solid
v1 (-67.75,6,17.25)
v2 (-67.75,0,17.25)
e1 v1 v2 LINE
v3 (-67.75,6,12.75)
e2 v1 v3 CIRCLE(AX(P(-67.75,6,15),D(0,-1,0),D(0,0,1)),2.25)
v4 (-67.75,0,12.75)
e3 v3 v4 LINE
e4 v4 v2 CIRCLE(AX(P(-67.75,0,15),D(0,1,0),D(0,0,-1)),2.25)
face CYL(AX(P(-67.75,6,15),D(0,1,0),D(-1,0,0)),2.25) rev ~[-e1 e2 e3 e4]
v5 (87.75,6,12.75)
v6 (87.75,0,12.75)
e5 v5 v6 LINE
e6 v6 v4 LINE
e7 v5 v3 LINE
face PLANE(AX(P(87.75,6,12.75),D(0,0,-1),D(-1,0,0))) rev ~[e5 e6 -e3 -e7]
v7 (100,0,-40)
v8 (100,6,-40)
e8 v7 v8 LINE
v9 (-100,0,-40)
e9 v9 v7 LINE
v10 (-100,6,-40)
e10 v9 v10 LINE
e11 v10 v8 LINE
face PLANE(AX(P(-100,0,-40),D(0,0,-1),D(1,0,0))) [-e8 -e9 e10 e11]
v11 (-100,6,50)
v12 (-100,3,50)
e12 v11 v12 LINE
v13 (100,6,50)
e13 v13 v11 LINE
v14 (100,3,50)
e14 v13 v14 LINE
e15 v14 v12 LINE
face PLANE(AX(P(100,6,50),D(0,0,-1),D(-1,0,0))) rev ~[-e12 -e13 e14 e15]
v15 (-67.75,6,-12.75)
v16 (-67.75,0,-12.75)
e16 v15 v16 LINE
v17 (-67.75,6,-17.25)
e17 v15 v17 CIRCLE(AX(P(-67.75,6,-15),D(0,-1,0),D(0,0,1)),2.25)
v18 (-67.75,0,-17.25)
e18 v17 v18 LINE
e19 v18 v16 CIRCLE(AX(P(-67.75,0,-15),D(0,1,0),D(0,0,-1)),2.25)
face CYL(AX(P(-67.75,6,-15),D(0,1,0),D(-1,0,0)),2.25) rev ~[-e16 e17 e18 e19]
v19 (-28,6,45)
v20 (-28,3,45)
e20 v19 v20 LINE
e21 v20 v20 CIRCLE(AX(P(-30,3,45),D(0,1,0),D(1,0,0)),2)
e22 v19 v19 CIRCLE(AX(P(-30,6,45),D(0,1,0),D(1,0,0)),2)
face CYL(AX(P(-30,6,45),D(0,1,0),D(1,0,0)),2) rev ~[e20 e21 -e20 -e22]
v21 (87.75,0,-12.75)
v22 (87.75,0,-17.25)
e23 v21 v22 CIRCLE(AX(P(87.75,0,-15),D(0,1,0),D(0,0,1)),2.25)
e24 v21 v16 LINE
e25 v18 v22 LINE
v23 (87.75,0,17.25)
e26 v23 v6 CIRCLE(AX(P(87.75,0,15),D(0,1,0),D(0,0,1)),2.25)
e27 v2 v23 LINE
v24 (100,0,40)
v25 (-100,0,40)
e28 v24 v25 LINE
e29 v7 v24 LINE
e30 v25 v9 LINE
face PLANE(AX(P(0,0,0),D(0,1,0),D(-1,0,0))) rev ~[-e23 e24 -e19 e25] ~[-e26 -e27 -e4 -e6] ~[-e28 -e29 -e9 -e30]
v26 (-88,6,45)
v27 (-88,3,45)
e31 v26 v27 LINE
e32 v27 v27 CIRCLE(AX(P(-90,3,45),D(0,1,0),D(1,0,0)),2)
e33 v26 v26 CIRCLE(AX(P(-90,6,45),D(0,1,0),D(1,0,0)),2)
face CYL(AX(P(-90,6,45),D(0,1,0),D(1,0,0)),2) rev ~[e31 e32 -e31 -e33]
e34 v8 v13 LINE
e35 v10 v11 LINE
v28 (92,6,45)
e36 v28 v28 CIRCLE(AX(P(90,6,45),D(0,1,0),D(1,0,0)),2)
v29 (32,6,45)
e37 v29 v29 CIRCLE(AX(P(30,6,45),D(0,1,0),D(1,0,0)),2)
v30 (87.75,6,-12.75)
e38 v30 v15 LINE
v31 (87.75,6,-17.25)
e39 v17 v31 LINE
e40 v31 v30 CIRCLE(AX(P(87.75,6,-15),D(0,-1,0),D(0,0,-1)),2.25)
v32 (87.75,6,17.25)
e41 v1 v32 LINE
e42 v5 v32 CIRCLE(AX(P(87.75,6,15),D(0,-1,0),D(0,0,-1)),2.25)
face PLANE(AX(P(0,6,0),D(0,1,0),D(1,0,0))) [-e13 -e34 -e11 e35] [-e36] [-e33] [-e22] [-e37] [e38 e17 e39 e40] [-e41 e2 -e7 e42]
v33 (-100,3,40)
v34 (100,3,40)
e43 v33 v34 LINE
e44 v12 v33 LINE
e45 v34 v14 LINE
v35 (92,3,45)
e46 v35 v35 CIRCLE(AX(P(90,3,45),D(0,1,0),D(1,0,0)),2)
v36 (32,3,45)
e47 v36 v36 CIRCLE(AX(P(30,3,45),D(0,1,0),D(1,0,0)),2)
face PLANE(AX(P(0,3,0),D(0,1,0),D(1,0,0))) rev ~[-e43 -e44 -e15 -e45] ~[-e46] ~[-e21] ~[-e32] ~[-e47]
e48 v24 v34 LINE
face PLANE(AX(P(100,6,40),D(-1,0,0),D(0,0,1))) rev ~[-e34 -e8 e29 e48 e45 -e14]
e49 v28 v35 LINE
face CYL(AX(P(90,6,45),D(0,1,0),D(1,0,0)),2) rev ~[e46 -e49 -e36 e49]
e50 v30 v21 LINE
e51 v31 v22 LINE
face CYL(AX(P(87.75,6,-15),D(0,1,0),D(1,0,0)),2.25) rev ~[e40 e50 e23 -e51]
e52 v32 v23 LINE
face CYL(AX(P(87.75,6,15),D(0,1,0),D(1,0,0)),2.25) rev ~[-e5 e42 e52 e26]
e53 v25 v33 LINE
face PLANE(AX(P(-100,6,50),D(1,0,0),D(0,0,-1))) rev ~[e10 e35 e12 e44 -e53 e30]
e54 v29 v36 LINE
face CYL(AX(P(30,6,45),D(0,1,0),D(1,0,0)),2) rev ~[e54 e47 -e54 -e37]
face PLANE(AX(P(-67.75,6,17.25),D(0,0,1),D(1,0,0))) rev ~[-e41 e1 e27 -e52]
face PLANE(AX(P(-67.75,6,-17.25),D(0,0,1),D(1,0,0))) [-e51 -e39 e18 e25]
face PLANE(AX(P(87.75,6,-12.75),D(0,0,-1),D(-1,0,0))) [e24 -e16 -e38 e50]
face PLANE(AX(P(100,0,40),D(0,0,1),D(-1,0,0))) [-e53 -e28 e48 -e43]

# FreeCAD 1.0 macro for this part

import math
import FreeCAD as App
import Part
import Sketcher
from FreeCAD import Vector
Q = App.Units.Quantity


def add_polygon(sketch, points):
    """Adds a closed chain of lines whose ends are joined by coincident constraints."""
    first, n = sketch.GeometryCount, len(points)
    for a, b in zip(points, points[1:] + points[:1]):
        sketch.addGeometry(Part.LineSegment(App.Vector(*a, 0), App.Vector(*b, 0)), False)
    for i in range(n):
        sketch.addConstraint(Sketcher.Constraint("Coincident", first + i, 2, first + (i + 1) % n, 1))

doc = App.newDocument("Part")
params = doc.addObject("Spreadsheet::Sheet", "Params")
for row, (alias, value) in enumerate([
    ("sketch1_width", "200 mm"),
    ("sketch1_height", "80 mm"),
    ("pad1_length", "6 mm"),
    ("sketch2_radius", "2.25 mm"),
    ("sketch2_width", "155.5 mm"),
    ("pocket1_length", "6 mm"),
    ("sketch3_height", "10 mm"),
    ("sketch3_width", "200 mm"),
    ("pad2_length", "3 mm"),
    ("sketch4_diameter", "4 mm"),
    ("pocket2_length", "3 mm"),
], start=1):
    params.set(f"A{row}", alias)
    params.set(f"B{row}", "=" + value)
    params.setAlias(f"B{row}", alias)

body = doc.addObject("PartDesign::Body", "Body")

sketch1 = body.newObject("Sketcher::SketchObject", "Sketch")
sketch1.AttachmentSupport = (doc.getObject("XZ_Plane"), [""])
sketch1.MapMode = "FlatFace"
add_polygon(sketch1, [(-100, 40), (100, 40), (100, -40), (-100, -40)])
sketch1.addConstraint([
    Sketcher.Constraint("Horizontal", 0),
    Sketcher.Constraint("Vertical", 1),
    Sketcher.Constraint("Horizontal", 2),
    Sketcher.Constraint("Vertical", 3),
    Sketcher.Constraint("Symmetric", 0, 2, 2, 2, -1, 1),
    Sketcher.Constraint("DistanceX", 0, 1, 0, 2, Q("200 mm")),
    Sketcher.Constraint("DistanceY", 1, 2, 1, 1, Q("80 mm")),
])
sketch1.setExpression("Constraints[9]", "Params.sketch1_width")
sketch1.setExpression("Constraints[10]", "Params.sketch1_height")
pad1 = body.newObject("PartDesign::Pad", "Pad")
pad1.Profile = sketch1
pad1.setExpression("Length", "Params.pad1_length")
pad1.Reversed = True

sketch2 = body.newObject("Sketcher::SketchObject", "Sketch001")
sketch2.AttachmentSupport = (doc.getObject("XZ_Plane"), [""])
sketch2.MapMode = "FlatFace"
sketch2.AttachmentOffset = App.Placement(Vector(0, 0, -6), App.Rotation())
sketch2.addGeometry([
    Part.ArcOfCircle(Part.Circle(Vector(-67.75, 15, 0), Vector(0, 0, 1), 2.25), math.radians(90), math.radians(270)),
    Part.LineSegment(Vector(-67.75, 17.25, 0), Vector(87.75, 17.25, 0)),
    Part.ArcOfCircle(Part.Circle(Vector(87.75, 15, 0), Vector(0, 0, 1), 2.25), math.radians(-90), math.radians(90)),
    Part.LineSegment(Vector(87.75, 12.75, 0), Vector(-67.75, 12.75, 0)),
    Part.LineSegment(Vector(87.75, -17.25, 0), Vector(-67.75, -17.25, 0)),
    Part.ArcOfCircle(Part.Circle(Vector(-67.75, -15, 0), Vector(0, 0, 1), 2.25), math.radians(90), math.radians(270)),
    Part.LineSegment(Vector(-67.75, -12.75, 0), Vector(87.75, -12.75, 0)),
    Part.ArcOfCircle(Part.Circle(Vector(87.75, -15, 0), Vector(0, 0, 1), 2.25), math.radians(-90), math.radians(90)),
], False)
sketch2.addConstraint([
    Sketcher.Constraint("Tangent", 0, 1, 1, 1),
    Sketcher.Constraint("Tangent", 1, 2, 2, 2),
    Sketcher.Constraint("Tangent", 2, 1, 3, 1),
    Sketcher.Constraint("Tangent", 3, 2, 0, 2),
    Sketcher.Constraint("Tangent", 4, 2, 5, 2),
    Sketcher.Constraint("Tangent", 5, 1, 6, 1),
    Sketcher.Constraint("Tangent", 6, 2, 7, 2),
    Sketcher.Constraint("Tangent", 7, 1, 4, 1),
    Sketcher.Constraint("Horizontal", 1),
    Sketcher.Constraint("Horizontal", 3),
    Sketcher.Constraint("Horizontal", 4),
    Sketcher.Constraint("Horizontal", 6),
    Sketcher.Constraint("Equal", 2, 5),
    Sketcher.Constraint("Symmetric", 0, 3, 5, 3, -1),
    Sketcher.Constraint("Vertical", 2, 3, 7, 3),
    Sketcher.Constraint("Radius", 0, Q("2.25 mm")),
    Sketcher.Constraint("DistanceY", 5, 3, 0, 3, Q("30 mm")),
    Sketcher.Constraint("DistanceX", 1, 1, 1, 2, Q("155.5 mm")),
    Sketcher.Constraint("DistanceX", 0, 3, -1, 1, Q("67.75 mm")),
])
sketch2.setExpression("Constraints[15]", "Params.sketch2_radius")
sketch2.setExpression("Constraints[17]", "Params.sketch2_width")
pocket1 = body.newObject("PartDesign::Pocket", "Pocket")
pocket1.Profile = sketch2
pocket1.setExpression("Length", "Params.pocket1_length")
pocket1.Reversed = True

sketch3 = body.newObject("Sketcher::SketchObject", "Sketch002")
sketch3.AttachmentSupport = (doc.getObject("XZ_Plane"), [""])
sketch3.MapMode = "FlatFace"
sketch3.AttachmentOffset = App.Placement(Vector(0, 0, -6), App.Rotation())
add_polygon(sketch3, [(100, 50), (100, 40), (-100, 40), (-100, 50)])
sketch3.addConstraint([
    Sketcher.Constraint("Vertical", 0),
    Sketcher.Constraint("Horizontal", 1),
    Sketcher.Constraint("Vertical", 2),
    Sketcher.Constraint("Horizontal", 3),
    Sketcher.Constraint("DistanceY", 0, 2, 0, 1, Q("10 mm")),
    Sketcher.Constraint("DistanceX", 1, 2, 1, 1, Q("200 mm")),
    Sketcher.Constraint("DistanceX", -1, 1, 0, 2, Q("100 mm")),
    Sketcher.Constraint("DistanceY", -1, 1, 0, 2, Q("40 mm")),
])
sketch3.setExpression("Constraints[8]", "Params.sketch3_height")
sketch3.setExpression("Constraints[9]", "Params.sketch3_width")
pad2 = body.newObject("PartDesign::Pad", "Pad001")
pad2.Profile = sketch3
pad2.setExpression("Length", "Params.pad2_length")

sketch4 = body.newObject("Sketcher::SketchObject", "Sketch003")
sketch4.AttachmentSupport = (doc.getObject("XZ_Plane"), [""])
sketch4.MapMode = "FlatFace"
sketch4.AttachmentOffset = App.Placement(Vector(0, 0, -6), App.Rotation())
sketch4.addGeometry([
    Part.Circle(Vector(-90, 45, 0), Vector(0, 0, 1), 2),
    Part.Circle(Vector(-30, 45, 0), Vector(0, 0, 1), 2),
    Part.Circle(Vector(30, 45, 0), Vector(0, 0, 1), 2),
    Part.Circle(Vector(90, 45, 0), Vector(0, 0, 1), 2),
], False)
sketch4.addConstraint([
    Sketcher.Constraint("Equal", 0, 1),
    Sketcher.Constraint("Equal", 1, 2),
    Sketcher.Constraint("Equal", 2, 3),
    Sketcher.Constraint("Symmetric", 1, 3, 2, 3, -2),
    Sketcher.Constraint("Symmetric", 0, 3, 3, 3, -2),
    Sketcher.Constraint("Horizontal", 0, 3, 1, 3),
    Sketcher.Constraint("Diameter", 0, Q("4 mm")),
    Sketcher.Constraint("DistanceX", 0, 3, 1, 3, Q("60 mm")),
    Sketcher.Constraint("DistanceX", 1, 3, 2, 3, Q("60 mm")),
    Sketcher.Constraint("DistanceY", -1, 1, 0, 3, Q("45 mm")),
])
sketch4.setExpression("Constraints[6]", "Params.sketch4_diameter")
pocket2 = body.newObject("PartDesign::Pocket", "Pocket001")
pocket2.Profile = sketch4
pocket2.setExpression("Length", "Params.pocket2_length")
pocket2.Reversed = True

doc.recompute()
